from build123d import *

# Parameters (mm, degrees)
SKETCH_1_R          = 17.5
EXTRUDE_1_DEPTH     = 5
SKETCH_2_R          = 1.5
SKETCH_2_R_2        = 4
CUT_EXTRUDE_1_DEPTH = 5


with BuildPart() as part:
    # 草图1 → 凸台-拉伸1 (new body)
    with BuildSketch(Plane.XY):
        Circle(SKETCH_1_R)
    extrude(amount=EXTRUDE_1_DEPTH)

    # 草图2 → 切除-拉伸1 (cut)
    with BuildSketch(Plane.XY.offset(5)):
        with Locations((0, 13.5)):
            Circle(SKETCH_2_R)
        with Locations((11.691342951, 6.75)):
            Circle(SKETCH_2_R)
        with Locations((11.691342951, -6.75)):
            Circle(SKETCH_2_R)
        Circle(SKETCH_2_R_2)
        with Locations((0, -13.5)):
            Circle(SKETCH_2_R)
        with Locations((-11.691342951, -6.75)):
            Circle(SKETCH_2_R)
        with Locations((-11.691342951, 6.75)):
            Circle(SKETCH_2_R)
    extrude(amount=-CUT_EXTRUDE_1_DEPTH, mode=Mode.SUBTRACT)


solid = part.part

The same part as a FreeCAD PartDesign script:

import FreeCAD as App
import Part
import Sketcher
Q = App.Units.Quantity

doc = App.newDocument("Part")
params = doc.addObject("Spreadsheet::Sheet", "Params")
for row, (alias, value) in enumerate([
    ("sketch1_diameter", "35 mm"),
    ("pad1_length", "5 mm"),
    ("sketch2_diameter", "3 mm"),
    ("sketch2_diameter2", "8 mm"),
    ("pocket1_length", "5 mm"),
], start=1):
    params.set(f"A{row}", alias)
    params.set(f"B{row}", "=" + value)
    params.setAlias(f"B{row}", alias)

body = doc.addObject("PartDesign::Body", "Body")

# Sketch on XY plane
sketch1 = doc.addObject("Sketcher::SketchObject", "Sketch")
body.addObject(sketch1)
sketch1.AttachmentSupport = (doc.XY_Plane, [""])
sketch1.MapMode = "FlatFace"
sketch1.addGeometry(Part.Circle(App.Vector(0, 0, 0), App.Vector(0, 0, 1), 17.5), False)
sketch1.addConstraint(Sketcher.Constraint("Coincident", 0, 3, -1, 1))
sketch1.addConstraint(Sketcher.Constraint("Diameter", 0, Q("35 mm")))
sketch1.setExpression("Constraints[1]", "Params.sketch1_diameter")
pad1 = doc.addObject("PartDesign::Pad", "Pad")
body.addObject(pad1)
pad1.Profile = sketch1
pad1.setExpression("Length", "Params.pad1_length")

# Sketch on XY plane
sketch2 = doc.addObject("Sketcher::SketchObject", "Sketch001")
body.addObject(sketch2)
sketch2.AttachmentSupport = (doc.XY_Plane, [""])
sketch2.MapMode = "FlatFace"
sketch2.AttachmentOffset = App.Placement(App.Vector(0, 0, 5), App.Rotation())
sketch2.addGeometry(Part.Circle(App.Vector(0, 13.5, 0), App.Vector(0, 0, 1), 1.5), False)
sketch2.addGeometry(Part.Circle(App.Vector(11.691343, 6.75, 0), App.Vector(0, 0, 1), 1.5), False)
sketch2.addGeometry(Part.Circle(App.Vector(11.691343, -6.75, 0), App.Vector(0, 0, 1), 1.5), False)
sketch2.addGeometry(Part.Circle(App.Vector(0, 0, 0), App.Vector(0, 0, 1), 4), False)
sketch2.addGeometry(Part.Circle(App.Vector(0, -13.5, 0), App.Vector(0, 0, 1), 1.5), False)
sketch2.addGeometry(Part.Circle(App.Vector(-11.691343, -6.75, 0), App.Vector(0, 0, 1), 1.5), False)
sketch2.addGeometry(Part.Circle(App.Vector(-11.691343, 6.75, 0), App.Vector(0, 0, 1), 1.5), False)
sketch2.addConstraint(Sketcher.Constraint("Coincident", 3, 3, -1, 1))
sketch2.addConstraint(Sketcher.Constraint("Equal", 0, 1))
sketch2.addConstraint(Sketcher.Constraint("Equal", 1, 2))
sketch2.addConstraint(Sketcher.Constraint("Equal", 2, 4))
sketch2.addConstraint(Sketcher.Constraint("Equal", 4, 5))
sketch2.addConstraint(Sketcher.Constraint("Equal", 5, 6))
sketch2.addConstraint(Sketcher.Constraint("Symmetric", 0, 3, 4, 3, -1, 1))
sketch2.addConstraint(Sketcher.Constraint("Symmetric", 1, 3, 5, 3, -1, 1))
sketch2.addConstraint(Sketcher.Constraint("Symmetric", 2, 3, 6, 3, -1, 1))
sketch2.addConstraint(Sketcher.Constraint("Symmetric", 2, 3, 5, 3, -2))
sketch2.addConstraint(Sketcher.Constraint("PointOnObject", 0, 3, -2))
sketch2.addConstraint(Sketcher.Constraint("Diameter", 0, Q("3 mm")))
sketch2.addConstraint(Sketcher.Constraint("Diameter", 3, Q("8 mm")))
sketch2.addConstraint(Sketcher.Constraint("DistanceY", 4, 3, 0, 3, Q("27 mm")))
sketch2.addConstraint(Sketcher.Constraint("DistanceY", 2, 3, 1, 3, Q("13.5 mm")))
sketch2.addConstraint(Sketcher.Constraint("DistanceX", -1, 1, 1, 3, Q("11.691343 mm")))
sketch2.setExpression("Constraints[11]", "Params.sketch2_diameter")
sketch2.setExpression("Constraints[12]", "Params.sketch2_diameter2")
pocket1 = doc.addObject("PartDesign::Pocket", "Pocket")
body.addObject(pocket1)
pocket1.Profile = sketch2
pocket1.setExpression("Length", "Params.pocket1_length")

doc.recompute()
